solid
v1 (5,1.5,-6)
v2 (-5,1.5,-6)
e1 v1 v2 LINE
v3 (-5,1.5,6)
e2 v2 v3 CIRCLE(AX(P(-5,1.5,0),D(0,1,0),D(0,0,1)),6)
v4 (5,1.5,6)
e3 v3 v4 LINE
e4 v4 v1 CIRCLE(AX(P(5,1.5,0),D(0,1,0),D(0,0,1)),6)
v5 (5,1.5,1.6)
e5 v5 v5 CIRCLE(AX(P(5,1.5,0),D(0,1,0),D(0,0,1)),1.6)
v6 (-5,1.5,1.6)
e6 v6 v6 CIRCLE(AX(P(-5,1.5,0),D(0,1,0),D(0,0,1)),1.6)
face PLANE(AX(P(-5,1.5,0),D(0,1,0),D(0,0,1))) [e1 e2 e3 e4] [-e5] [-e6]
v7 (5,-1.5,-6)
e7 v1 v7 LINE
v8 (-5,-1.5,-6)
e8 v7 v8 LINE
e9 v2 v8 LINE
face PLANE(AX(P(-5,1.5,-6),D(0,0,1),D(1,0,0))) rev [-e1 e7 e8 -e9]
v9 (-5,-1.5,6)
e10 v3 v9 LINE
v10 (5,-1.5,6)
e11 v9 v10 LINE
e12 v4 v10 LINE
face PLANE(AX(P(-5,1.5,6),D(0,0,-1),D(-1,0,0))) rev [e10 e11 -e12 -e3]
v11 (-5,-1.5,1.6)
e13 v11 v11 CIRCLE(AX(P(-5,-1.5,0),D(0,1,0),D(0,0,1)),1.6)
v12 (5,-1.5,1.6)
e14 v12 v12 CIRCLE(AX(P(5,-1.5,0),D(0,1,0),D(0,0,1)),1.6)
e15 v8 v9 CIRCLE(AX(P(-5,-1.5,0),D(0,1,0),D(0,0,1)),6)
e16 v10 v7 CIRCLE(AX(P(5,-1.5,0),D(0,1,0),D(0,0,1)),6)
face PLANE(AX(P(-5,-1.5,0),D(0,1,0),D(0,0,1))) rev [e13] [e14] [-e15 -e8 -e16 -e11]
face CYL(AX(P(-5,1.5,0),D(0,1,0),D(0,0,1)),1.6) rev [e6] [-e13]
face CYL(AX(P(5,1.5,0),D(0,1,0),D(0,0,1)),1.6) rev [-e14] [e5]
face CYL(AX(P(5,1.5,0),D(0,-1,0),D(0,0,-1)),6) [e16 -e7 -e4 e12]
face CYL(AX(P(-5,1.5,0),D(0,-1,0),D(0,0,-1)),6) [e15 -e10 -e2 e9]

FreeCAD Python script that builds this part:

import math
import FreeCAD as App
import Part
import Sketcher
from FreeCAD import Vector
Q = App.Units.Quantity

doc = App.newDocument("Part")
body = doc.addObject("PartDesign::Body", "Body")

# Sketch on XZ plane
sketch1 = body.newObject("Sketcher::SketchObject", "Sketch")
sketch1.AttachmentSupport = (doc.getObject("XZ_Plane"), [""])
sketch1.MapMode = "FlatFace"
sketch1.addGeometry(Part.LineSegment(Vector(5, -6, 0), Vector(-5, -6, 0)), False)
sketch1.addGeometry(Part.ArcOfCircle(Part.Circle(Vector(-5, 0, 0), Vector(0, 0, 1), 6), math.radians(90), math.radians(270)), False)
sketch1.addGeometry(Part.LineSegment(Vector(-5, 6, 0), Vector(5, 6, 0)), False)
sketch1.addGeometry(Part.ArcOfCircle(Part.Circle(Vector(5, 0, 0), Vector(0, 0, 1), 6), math.radians(-90), math.radians(90)), False)
sketch1.addConstraint(Sketcher.Constraint("Tangent", 0, 2, 1, 2))
sketch1.addConstraint(Sketcher.Constraint("Tangent", 1, 1, 2, 1))
sketch1.addConstraint(Sketcher.Constraint("Tangent", 2, 2, 3, 2))
sketch1.addConstraint(Sketcher.Constraint("Tangent", 3, 1, 0, 1))
sketch1.addConstraint(Sketcher.Constraint("Horizontal", 0))
sketch1.addConstraint(Sketcher.Constraint("Horizontal", 2))
sketch1.addConstraint(Sketcher.Constraint("Symmetric", 1, 3, 3, 3, -1, 1))
sketch1.addConstraint(Sketcher.Constraint("Radius", 1, Q("6 mm")))
sketch1.addConstraint(Sketcher.Constraint("DistanceX", 0, 2, 0, 1, Q("10 mm")))
pad1 = body.newObject("PartDesign::Pad", "Pad")
pad1.Profile = sketch1
pad1.Length = 3
pad1.Midplane = True

# Sketch on XZ plane
sketch2 = body.newObject("Sketcher::SketchObject", "Sketch001")
sketch2.AttachmentSupport = (doc.getObject("XZ_Plane"), [""])
sketch2.MapMode = "FlatFace"
sketch2.AttachmentOffset = App.Placement(Vector(0, 0, -1.5), App.Rotation())
sketch2.addGeometry(Part.Circle(Vector(-5, 0, 0), Vector(0, 0, 1), 1.6), False)
sketch2.addGeometry(Part.Circle(Vector(5, 0, 0), Vector(0, 0, 1), 1.6), False)
sketch2.addConstraint(Sketcher.Constraint("Equal", 0, 1))
sketch2.addConstraint(Sketcher.Constraint("Symmetric", 0, 3, 1, 3, -1, 1))
sketch2.addConstraint(Sketcher.Constraint("PointOnObject", 0, 3, -1))
sketch2.addConstraint(Sketcher.Constraint("Diameter", 0, Q("3.2 mm")))
sketch2.addConstraint(Sketcher.Constraint("DistanceX", 0, 3, -1, 1, Q("5 mm")))
doc.recompute()
hole = body.newObject("PartDesign::Hole", "Hole")
hole.Profile = sketch2
hole.ThreadType = "None"
hole.Diameter = 3.2
hole.DepthType = "Dimension"
hole.Depth = 3
hole.DrillPoint = "Flat"
hole.Reversed = True

doc.recompute()
